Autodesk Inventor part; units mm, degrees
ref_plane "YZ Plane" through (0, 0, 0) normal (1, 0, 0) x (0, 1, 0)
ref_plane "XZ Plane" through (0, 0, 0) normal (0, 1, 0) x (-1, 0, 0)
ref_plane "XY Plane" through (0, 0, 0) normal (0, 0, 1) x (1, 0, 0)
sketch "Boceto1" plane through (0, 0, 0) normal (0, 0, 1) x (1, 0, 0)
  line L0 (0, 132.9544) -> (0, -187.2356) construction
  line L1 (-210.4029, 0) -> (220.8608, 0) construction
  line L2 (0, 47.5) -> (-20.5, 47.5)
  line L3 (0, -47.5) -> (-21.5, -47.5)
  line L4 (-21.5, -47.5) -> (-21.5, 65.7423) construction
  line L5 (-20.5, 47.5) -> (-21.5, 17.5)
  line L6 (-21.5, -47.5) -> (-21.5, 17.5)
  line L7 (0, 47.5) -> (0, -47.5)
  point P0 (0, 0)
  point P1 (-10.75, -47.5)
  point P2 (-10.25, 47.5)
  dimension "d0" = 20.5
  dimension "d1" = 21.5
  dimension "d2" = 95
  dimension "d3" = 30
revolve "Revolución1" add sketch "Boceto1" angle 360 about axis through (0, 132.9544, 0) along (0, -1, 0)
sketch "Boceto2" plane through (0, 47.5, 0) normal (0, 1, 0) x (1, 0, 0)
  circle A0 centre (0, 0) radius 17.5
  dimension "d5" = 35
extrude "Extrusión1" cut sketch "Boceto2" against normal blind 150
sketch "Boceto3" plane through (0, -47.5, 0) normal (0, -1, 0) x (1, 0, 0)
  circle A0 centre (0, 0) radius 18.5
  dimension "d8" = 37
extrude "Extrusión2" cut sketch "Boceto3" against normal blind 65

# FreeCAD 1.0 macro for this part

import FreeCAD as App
import Part
import Sketcher
from FreeCAD import Vector
Q = App.Units.Quantity

doc = App.newDocument("Part")
body = doc.addObject("PartDesign::Body", "Body")

# Sketch on XY plane
sketch1 = doc.addObject("Sketcher::SketchObject", "Sketch")
body.addObject(sketch1)
sketch1.AttachmentSupport = (doc.XY_Plane, [""])
sketch1.MapMode = "FlatFace"
sketch1.addGeometry(Part.LineSegment(Vector(0, -48, 0), Vector(0, 48, 0)), False)
sketch1.addGeometry(Part.LineSegment(Vector(0, 48, 0), Vector(-20, 48, 0)), False)
sketch1.addGeometry(Part.LineSegment(Vector(-20, 48, 0), Vector(-22, 18, 0)), False)
sketch1.addGeometry(Part.LineSegment(Vector(-22, 18, 0), Vector(-22, -48, 0)), False)
sketch1.addGeometry(Part.LineSegment(Vector(-22, -48, 0), Vector(0, -48, 0)), False)
sketch1.addConstraint(Sketcher.Constraint("Coincident", 0, 2, 1, 1))
sketch1.addConstraint(Sketcher.Constraint("Coincident", 1, 2, 2, 1))
sketch1.addConstraint(Sketcher.Constraint("Coincident", 2, 2, 3, 1))
sketch1.addConstraint(Sketcher.Constraint("Coincident", 3, 2, 4, 1))
sketch1.addConstraint(Sketcher.Constraint("Coincident", 4, 2, 0, 1))
sketch1.addConstraint(Sketcher.Constraint("Vertical", 0))
sketch1.addConstraint(Sketcher.Constraint("Horizontal", 1))
sketch1.addConstraint(Sketcher.Constraint("Vertical", 3))
sketch1.addConstraint(Sketcher.Constraint("Horizontal", 4))
sketch1.addConstraint(Sketcher.Constraint("Symmetric", 0, 2, 4, 2, -1, 1))
sketch1.addConstraint(Sketcher.Constraint("DistanceY", 0, 1, 0, 2, Q("95 mm")))
sketch1.addConstraint(Sketcher.Constraint("DistanceX", 1, 2, 1, 1, Q("20.5 mm")))
sketch1.addConstraint(Sketcher.Constraint("DistanceX", 4, 1, 4, 2, Q("21.5 mm")))
sketch1.addConstraint(Sketcher.Constraint("DistanceY", 2, 2, 1, 2, Q("30 mm")))
revolution = doc.addObject("PartDesign::Revolution", "Revolution")
body.addObject(revolution)
revolution.Profile = sketch1
revolution.ReferenceAxis = (sketch1, ["V_Axis"])
revolution.Angle = 360

# Sketch on XZ plane
sketch2 = doc.addObject("Sketcher::SketchObject", "Sketch001")
body.addObject(sketch2)
sketch2.AttachmentSupport = (doc.XZ_Plane, [""])
sketch2.MapMode = "FlatFace"
sketch2.AttachmentOffset = App.Placement(Vector(0, 0, -47.5), App.Rotation())
sketch2.addGeometry(Part.Circle(Vector(0, 0, 0), Vector(0, 0, 1), 18), False)
sketch2.addConstraint(Sketcher.Constraint("Coincident", 0, 3, -1, 1))
sketch2.addConstraint(Sketcher.Constraint("Diameter", 0, Q("35 mm")))
pocket1 = doc.addObject("PartDesign::Pocket", "Pocket")
body.addObject(pocket1)
pocket1.Profile = sketch2
pocket1.Length = 150
pocket1.Reversed = True

# Sketch on XZ plane
sketch3 = doc.addObject("Sketcher::SketchObject", "Sketch002")
body.addObject(sketch3)
sketch3.AttachmentSupport = (doc.XZ_Plane, [""])
sketch3.MapMode = "FlatFace"
sketch3.AttachmentOffset = App.Placement(Vector(0, 0, 47.5), App.Rotation())
sketch3.addGeometry(Part.Circle(Vector(0, 0, 0), Vector(0, 0, 1), 18), False)
sketch3.addConstraint(Sketcher.Constraint("Coincident", 0, 3, -1, 1))
sketch3.addConstraint(Sketcher.Constraint("Diameter", 0, Q("37 mm")))
pocket2 = doc.addObject("PartDesign::Pocket", "Pocket001")
body.addObject(pocket2)
pocket2.Profile = sketch3
pocket2.Length = 65

doc.recompute()
